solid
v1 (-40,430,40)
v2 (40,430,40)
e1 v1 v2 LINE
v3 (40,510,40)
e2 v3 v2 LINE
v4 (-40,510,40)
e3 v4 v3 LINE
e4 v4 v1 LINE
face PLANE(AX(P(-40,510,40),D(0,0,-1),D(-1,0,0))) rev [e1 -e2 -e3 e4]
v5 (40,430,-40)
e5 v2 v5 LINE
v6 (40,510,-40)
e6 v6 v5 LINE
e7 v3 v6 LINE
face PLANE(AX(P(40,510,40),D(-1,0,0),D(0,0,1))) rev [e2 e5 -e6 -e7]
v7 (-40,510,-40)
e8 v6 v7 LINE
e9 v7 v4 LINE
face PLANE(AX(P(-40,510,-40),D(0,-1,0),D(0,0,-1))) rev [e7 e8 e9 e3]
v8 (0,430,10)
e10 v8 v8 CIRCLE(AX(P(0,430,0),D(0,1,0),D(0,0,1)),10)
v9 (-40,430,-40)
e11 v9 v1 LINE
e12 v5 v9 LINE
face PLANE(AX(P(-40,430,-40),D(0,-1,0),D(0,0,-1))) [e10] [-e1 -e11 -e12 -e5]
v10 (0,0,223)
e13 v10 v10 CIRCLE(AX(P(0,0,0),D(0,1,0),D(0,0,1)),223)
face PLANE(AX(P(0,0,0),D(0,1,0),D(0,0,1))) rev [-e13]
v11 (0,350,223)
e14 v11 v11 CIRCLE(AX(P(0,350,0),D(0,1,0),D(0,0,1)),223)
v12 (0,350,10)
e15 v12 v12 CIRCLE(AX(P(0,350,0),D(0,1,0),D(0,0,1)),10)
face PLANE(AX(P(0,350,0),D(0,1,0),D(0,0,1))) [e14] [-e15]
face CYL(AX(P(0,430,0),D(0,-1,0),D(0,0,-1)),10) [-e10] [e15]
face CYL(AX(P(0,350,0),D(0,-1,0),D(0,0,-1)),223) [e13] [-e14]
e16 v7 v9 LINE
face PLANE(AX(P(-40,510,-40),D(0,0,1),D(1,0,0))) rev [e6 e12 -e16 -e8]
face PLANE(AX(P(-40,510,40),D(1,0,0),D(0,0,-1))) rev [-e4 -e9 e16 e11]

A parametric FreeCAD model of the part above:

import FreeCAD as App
import Part
import Sketcher
from FreeCAD import Vector
Q = App.Units.Quantity


def add_polygon(sketch, points):
    """Adds a closed chain of lines whose ends are joined by coincident constraints."""
    first, n = sketch.GeometryCount, len(points)
    for a, b in zip(points, points[1:] + points[:1]):
        sketch.addGeometry(Part.LineSegment(App.Vector(*a, 0), App.Vector(*b, 0)), False)
    for i in range(n):
        sketch.addConstraint(Sketcher.Constraint("Coincident", first + i, 2, first + (i + 1) % n, 1))

doc = App.newDocument("Part")
params = doc.addObject("Spreadsheet::Sheet", "Params")
for row, (alias, value) in enumerate([
    ("sketch1_diameter", "446 mm"),
    ("pad1_length", "350 mm"),
    ("sketch2_diameter", "20 mm"),
    ("pad2_length", "80 mm"),
    ("sketch3_width", "80 mm"),
    ("pad3_length", "80 mm"),
], start=1):
    params.set(f"A{row}", alias)
    params.set(f"B{row}", "=" + value)
    params.setAlias(f"B{row}", alias)

body = doc.addObject("PartDesign::Body", "Body")

# Sketch on XZ plane
sketch1 = doc.addObject("Sketcher::SketchObject", "Sketch")
body.addObject(sketch1)
sketch1.AttachmentSupport = (doc.XZ_Plane, [""])
sketch1.MapMode = "FlatFace"
sketch1.addGeometry(Part.Circle(Vector(0, 0, 0), Vector(0, 0, 1), 223), False)
sketch1.addConstraint([
    Sketcher.Constraint("Coincident", 0, 3, -1, 1),
    Sketcher.Constraint("Diameter", 0, Q("446 mm")),
])
sketch1.setExpression("Constraints[1]", "Params.sketch1_diameter")
pad1 = doc.addObject("PartDesign::Pad", "Pad")
body.addObject(pad1)
pad1.Profile = sketch1
pad1.setExpression("Length", "Params.pad1_length")
pad1.Reversed = True

# Sketch on XZ plane
sketch2 = doc.addObject("Sketcher::SketchObject", "Sketch001")
body.addObject(sketch2)
sketch2.AttachmentSupport = (doc.XZ_Plane, [""])
sketch2.MapMode = "FlatFace"
sketch2.AttachmentOffset = App.Placement(Vector(0, 0, -350), App.Rotation())
sketch2.addGeometry(Part.Circle(Vector(0, 0, 0), Vector(0, 0, 1), 10), False)
sketch2.addConstraint([
    Sketcher.Constraint("Coincident", 0, 3, -1, 1),
    Sketcher.Constraint("Diameter", 0, Q("20 mm")),
])
sketch2.setExpression("Constraints[1]", "Params.sketch2_diameter")
pad2 = doc.addObject("PartDesign::Pad", "Pad001")
body.addObject(pad2)
pad2.Profile = sketch2
pad2.setExpression("Length", "Params.pad2_length")
pad2.Reversed = True

# Sketch on XZ plane
sketch3 = doc.addObject("Sketcher::SketchObject", "Sketch002")
body.addObject(sketch3)
sketch3.AttachmentSupport = (doc.XZ_Plane, [""])
sketch3.MapMode = "FlatFace"
sketch3.AttachmentOffset = App.Placement(Vector(0, 0, -430), App.Rotation())
add_polygon(sketch3, [(-40, -40), (-40, 40), (40, 40), (40, -40)])  # lines 0-3
sketch3.addConstraint([
    Sketcher.Constraint("Vertical", 0),
    Sketcher.Constraint("Horizontal", 1),
    Sketcher.Constraint("Vertical", 2),
    Sketcher.Constraint("Horizontal", 3),
    Sketcher.Constraint("Symmetric", 0, 2, 2, 2, -1, 1),
    Sketcher.Constraint("Equal", 3, 0),
    Sketcher.Constraint("DistanceX", 1, 1, 1, 2, Q("80 mm")),
])
sketch3.setExpression("Constraints[10]", "Params.sketch3_width")
pad3 = doc.addObject("PartDesign::Pad", "Pad002")
body.addObject(pad3)
pad3.Profile = sketch3
pad3.setExpression("Length", "Params.pad3_length")
pad3.Reversed = True

doc.recompute()
